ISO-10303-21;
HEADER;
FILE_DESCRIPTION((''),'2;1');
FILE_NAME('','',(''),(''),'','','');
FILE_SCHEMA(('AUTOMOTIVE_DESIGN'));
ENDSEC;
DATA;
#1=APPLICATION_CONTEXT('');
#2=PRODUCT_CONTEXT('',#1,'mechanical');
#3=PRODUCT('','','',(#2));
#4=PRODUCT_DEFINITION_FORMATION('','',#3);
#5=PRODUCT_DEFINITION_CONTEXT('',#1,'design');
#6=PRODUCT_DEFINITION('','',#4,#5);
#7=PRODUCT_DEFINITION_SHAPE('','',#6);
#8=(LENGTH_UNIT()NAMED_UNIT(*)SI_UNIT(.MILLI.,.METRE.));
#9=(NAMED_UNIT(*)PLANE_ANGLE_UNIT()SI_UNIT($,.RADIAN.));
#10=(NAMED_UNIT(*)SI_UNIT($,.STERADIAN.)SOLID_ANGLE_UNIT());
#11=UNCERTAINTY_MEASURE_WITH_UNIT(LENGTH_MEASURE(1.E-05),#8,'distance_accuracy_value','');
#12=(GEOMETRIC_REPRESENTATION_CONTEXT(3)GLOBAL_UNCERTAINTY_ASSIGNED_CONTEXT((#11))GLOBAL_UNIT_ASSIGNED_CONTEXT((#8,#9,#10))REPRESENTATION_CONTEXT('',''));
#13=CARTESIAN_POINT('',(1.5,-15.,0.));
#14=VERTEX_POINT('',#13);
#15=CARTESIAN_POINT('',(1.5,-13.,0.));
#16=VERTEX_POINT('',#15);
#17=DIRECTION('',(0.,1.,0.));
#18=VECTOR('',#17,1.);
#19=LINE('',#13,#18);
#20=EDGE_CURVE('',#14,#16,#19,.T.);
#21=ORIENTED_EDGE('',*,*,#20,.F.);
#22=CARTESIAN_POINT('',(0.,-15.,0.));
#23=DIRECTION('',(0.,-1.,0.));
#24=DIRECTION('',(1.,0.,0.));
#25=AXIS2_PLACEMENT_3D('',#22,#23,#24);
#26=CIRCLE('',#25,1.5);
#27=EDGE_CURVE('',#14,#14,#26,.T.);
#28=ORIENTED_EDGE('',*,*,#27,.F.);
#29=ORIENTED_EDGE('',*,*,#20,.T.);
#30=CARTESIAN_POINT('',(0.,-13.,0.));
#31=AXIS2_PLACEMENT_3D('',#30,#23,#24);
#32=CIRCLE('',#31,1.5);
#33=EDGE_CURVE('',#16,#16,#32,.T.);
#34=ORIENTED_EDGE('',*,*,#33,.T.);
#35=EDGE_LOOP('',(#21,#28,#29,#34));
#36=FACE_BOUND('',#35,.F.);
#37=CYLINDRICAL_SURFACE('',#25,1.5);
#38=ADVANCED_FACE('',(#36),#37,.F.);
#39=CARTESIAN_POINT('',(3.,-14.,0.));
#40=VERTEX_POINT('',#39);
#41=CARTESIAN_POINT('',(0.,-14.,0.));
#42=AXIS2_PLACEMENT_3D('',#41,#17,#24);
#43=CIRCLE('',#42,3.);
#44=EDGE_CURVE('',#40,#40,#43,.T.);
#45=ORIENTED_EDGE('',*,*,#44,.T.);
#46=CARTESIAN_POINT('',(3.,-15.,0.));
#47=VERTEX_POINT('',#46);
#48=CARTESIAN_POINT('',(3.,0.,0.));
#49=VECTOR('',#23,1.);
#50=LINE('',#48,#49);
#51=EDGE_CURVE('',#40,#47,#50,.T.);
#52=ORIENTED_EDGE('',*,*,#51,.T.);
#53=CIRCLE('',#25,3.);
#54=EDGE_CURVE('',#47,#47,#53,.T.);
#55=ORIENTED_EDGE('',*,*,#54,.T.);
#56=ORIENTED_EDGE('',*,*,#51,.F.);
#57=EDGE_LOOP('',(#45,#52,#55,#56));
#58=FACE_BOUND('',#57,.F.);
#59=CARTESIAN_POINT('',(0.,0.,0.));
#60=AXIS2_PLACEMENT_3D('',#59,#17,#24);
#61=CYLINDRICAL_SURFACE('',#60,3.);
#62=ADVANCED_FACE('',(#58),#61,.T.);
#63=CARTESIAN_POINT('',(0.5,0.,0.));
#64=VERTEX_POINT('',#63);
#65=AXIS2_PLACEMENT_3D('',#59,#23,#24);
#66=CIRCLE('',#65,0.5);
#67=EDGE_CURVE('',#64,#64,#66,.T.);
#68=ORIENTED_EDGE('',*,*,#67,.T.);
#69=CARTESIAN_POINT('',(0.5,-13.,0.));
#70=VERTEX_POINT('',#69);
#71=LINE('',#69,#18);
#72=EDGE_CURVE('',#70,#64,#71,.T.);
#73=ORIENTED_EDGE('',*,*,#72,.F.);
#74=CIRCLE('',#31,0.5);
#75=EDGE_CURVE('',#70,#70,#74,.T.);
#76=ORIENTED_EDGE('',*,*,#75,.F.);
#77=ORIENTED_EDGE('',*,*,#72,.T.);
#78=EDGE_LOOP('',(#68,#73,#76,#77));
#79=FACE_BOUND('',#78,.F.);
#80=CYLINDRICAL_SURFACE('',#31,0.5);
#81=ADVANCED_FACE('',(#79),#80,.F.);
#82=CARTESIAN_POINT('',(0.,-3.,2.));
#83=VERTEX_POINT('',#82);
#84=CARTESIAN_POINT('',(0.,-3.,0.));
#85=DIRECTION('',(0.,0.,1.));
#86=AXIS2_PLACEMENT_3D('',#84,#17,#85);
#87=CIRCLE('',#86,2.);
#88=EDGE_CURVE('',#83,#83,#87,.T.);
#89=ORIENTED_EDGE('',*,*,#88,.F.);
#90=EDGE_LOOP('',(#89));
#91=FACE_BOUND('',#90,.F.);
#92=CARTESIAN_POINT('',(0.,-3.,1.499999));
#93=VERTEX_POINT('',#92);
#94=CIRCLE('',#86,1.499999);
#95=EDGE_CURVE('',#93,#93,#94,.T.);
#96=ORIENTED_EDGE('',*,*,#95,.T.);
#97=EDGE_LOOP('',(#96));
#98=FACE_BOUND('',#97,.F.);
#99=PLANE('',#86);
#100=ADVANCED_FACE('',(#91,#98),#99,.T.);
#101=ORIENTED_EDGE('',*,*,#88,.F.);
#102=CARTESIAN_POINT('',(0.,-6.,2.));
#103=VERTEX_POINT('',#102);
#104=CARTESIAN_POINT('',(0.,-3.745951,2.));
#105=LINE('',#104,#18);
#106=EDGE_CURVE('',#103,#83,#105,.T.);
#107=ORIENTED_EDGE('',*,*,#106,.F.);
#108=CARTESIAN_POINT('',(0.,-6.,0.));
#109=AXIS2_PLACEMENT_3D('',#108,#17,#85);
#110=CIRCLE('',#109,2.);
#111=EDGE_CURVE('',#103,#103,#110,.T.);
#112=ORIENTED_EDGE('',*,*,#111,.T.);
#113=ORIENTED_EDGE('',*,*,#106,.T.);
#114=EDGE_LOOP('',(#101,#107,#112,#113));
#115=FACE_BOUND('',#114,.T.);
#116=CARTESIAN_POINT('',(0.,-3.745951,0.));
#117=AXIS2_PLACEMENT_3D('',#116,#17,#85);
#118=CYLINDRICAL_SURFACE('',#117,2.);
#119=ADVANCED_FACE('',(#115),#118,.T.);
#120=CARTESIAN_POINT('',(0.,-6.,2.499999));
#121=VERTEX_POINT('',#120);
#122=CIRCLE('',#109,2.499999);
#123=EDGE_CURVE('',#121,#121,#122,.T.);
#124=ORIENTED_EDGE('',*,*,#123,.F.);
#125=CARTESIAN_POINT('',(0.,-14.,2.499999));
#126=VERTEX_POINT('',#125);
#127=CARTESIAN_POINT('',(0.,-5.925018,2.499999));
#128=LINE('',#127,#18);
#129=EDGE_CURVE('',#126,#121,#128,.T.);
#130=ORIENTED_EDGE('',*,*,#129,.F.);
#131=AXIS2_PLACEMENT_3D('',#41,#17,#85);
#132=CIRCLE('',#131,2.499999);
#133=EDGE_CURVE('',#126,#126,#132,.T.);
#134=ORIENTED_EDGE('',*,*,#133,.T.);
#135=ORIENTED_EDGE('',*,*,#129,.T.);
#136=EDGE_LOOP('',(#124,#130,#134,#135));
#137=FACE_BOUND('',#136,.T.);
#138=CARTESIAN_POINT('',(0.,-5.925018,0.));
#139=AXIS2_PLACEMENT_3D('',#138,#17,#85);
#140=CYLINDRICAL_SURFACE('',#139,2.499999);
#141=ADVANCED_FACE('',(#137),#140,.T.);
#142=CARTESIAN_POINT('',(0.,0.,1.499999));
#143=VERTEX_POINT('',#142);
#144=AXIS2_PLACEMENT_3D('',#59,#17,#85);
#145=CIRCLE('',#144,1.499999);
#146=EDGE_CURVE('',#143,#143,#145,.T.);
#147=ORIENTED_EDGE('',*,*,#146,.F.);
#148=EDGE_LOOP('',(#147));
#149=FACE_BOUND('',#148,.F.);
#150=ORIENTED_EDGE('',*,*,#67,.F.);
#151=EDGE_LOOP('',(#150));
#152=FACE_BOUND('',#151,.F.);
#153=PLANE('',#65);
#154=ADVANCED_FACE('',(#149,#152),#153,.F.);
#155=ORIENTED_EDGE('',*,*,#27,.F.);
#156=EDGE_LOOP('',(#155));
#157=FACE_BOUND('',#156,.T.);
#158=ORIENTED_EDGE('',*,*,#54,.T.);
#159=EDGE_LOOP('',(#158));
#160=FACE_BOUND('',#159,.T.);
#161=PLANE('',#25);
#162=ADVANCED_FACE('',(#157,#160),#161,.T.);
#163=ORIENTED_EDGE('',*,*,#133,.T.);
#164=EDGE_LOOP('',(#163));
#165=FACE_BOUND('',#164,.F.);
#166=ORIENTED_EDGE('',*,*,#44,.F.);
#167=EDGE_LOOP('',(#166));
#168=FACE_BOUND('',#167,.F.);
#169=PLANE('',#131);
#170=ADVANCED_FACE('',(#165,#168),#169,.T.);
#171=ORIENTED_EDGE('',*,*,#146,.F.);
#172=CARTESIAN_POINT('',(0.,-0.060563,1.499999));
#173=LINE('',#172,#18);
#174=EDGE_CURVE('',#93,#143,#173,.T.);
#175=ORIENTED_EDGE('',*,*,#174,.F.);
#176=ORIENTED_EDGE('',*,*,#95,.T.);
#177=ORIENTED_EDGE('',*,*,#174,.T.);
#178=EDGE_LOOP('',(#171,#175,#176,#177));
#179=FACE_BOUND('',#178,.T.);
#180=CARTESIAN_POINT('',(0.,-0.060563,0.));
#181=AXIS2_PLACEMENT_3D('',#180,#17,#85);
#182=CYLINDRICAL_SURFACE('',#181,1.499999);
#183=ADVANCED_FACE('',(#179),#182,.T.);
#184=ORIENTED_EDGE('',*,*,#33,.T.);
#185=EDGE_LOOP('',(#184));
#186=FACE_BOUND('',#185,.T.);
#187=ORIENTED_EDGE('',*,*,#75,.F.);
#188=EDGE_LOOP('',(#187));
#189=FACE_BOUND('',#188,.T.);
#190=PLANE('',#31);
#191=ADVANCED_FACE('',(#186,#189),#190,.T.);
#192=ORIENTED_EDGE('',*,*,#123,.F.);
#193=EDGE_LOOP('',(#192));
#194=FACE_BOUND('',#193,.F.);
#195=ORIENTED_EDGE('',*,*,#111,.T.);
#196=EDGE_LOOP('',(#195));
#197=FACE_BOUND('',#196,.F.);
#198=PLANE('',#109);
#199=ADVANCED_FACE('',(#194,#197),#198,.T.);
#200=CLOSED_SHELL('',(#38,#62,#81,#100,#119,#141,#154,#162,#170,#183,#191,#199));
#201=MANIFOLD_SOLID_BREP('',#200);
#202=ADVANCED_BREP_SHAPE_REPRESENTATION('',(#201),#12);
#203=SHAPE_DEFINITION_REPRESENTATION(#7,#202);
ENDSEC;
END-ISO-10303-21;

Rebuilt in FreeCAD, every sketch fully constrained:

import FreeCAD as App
import Part
import Sketcher

V = App.Vector
Q = App.Units.Quantity

doc = App.newDocument("Part")
body = doc.addObject("PartDesign::Body", "Body")

sketch1 = body.newObject("Sketcher::SketchObject", "Sketch")
sketch1.AttachmentSupport = (doc.getObject("XZ_Plane"), [""])
sketch1.MapMode = "FlatFace"
sketch1.addGeometry(Part.Circle(V(0, 0, 0), V(0, 0, 1), 3), False)
sketch1.addConstraint([
    Sketcher.Constraint("Coincident", 0, 3, -1, 1),
    Sketcher.Constraint("Diameter", 0, Q("6 mm")),
])
pad1 = body.newObject("PartDesign::Pad", "Pad")
pad1.Profile = sketch1
pad1.Length = 15

sketch2 = body.newObject("Sketcher::SketchObject", "Sketch001")
sketch2.AttachmentSupport = (doc.getObject("XZ_Plane"), [""])
sketch2.MapMode = "FlatFace"
sketch2.AttachmentOffset = App.Placement(V(0, 0, 15), App.Rotation())
sketch2.addGeometry(Part.Circle(V(0, 0, 0), V(0, 0, 1), 1.5), False)
sketch2.addConstraint([
    Sketcher.Constraint("Coincident", 0, 3, -1, 1),
    Sketcher.Constraint("Diameter", 0, Q("3 mm")),
])
pocket1 = body.newObject("PartDesign::Pocket", "Pocket")
pocket1.Profile = sketch2
pocket1.Length = 2

sketch3 = body.newObject("Sketcher::SketchObject", "Sketch002")
sketch3.AttachmentSupport = (doc.getObject("YZ_Plane"), [""])
sketch3.MapMode = "FlatFace"
sketch3.addGeometry([
    Part.LineSegment(V(-3, 3.7, 0), V(-3, 1.5, 0)),
    Part.LineSegment(V(-3, 1.5, 0), V(2.9, 1.5, 0)),
    Part.LineSegment(V(2.9, 1.5, 0), V(2.9, 3.7, 0)),
    Part.LineSegment(V(2.9, 3.7, 0), V(-3, 3.7, 0)),
], False)
sketch3.addConstraint([
    Sketcher.Constraint("Coincident", 0, 2, 1, 1),
    Sketcher.Constraint("Coincident", 1, 2, 2, 1),
    Sketcher.Constraint("Coincident", 2, 2, 3, 1),
    Sketcher.Constraint("Coincident", 3, 2, 0, 1),
    Sketcher.Constraint("Vertical", 0),
    Sketcher.Constraint("Horizontal", 1),
    Sketcher.Constraint("Vertical", 2),
    Sketcher.Constraint("Horizontal", 3),
    Sketcher.Constraint("DistanceX", 0, 2, -1, 1, Q("3 mm")),
    Sketcher.Constraint("DistanceY", -1, 1, 0, 2, Q("1.499999 mm")),
    Sketcher.Constraint("DistanceX", 1, 1, 1, 2, Q("5.878874 mm")),
    Sketcher.Constraint("DistanceY", 0, 2, 0, 1, Q("2.213873 mm")),
])
groove = body.newObject("PartDesign::Groove", "Groove")
groove.Profile = sketch3
groove.ReferenceAxis = (sketch3, ["H_Axis"])
groove.Angle = 360

sketch4 = body.newObject("Sketcher::SketchObject", "Sketch003")
sketch4.AttachmentSupport = (doc.getObject("XZ_Plane"), [""])
sketch4.MapMode = "FlatFace"
sketch4.AttachmentOffset = App.Placement(V(0, 0, 13), App.Rotation())
sketch4.addGeometry(Part.Circle(V(0, 0, 0), V(0, 0, 1), 0.5), False)
sketch4.addConstraint([
    Sketcher.Constraint("Coincident", 0, 3, -1, 1),
    Sketcher.Constraint("Diameter", 0, Q("1 mm")),
])
pocket2 = body.newObject("PartDesign::Pocket", "Pocket001")
pocket2.Profile = sketch4
pocket2.Type = "ThroughAll"

sketch5 = body.newObject("Sketcher::SketchObject", "Sketch004")
sketch5.AttachmentSupport = (doc.getObject("YZ_Plane"), [""])
sketch5.MapMode = "FlatFace"
sketch5.addGeometry([
    Part.LineSegment(V(-14, 4.8, 0), V(-14, 2.5, 0)),
    Part.LineSegment(V(-14, 2.5, 0), V(2.1, 2.5, 0)),
    Part.LineSegment(V(2.1, 2.5, 0), V(2.1, 4.8, 0)),
    Part.LineSegment(V(2.1, 4.8, 0), V(-14, 4.8, 0)),
], False)
sketch5.addConstraint([
    Sketcher.Constraint("Coincident", 0, 2, 1, 1),
    Sketcher.Constraint("Coincident", 1, 2, 2, 1),
    Sketcher.Constraint("Coincident", 2, 2, 3, 1),
    Sketcher.Constraint("Coincident", 3, 2, 0, 1),
    Sketcher.Constraint("Vertical", 0),
    Sketcher.Constraint("Horizontal", 1),
    Sketcher.Constraint("Vertical", 2),
    Sketcher.Constraint("Horizontal", 3),
    Sketcher.Constraint("DistanceX", 0, 2, -1, 1, Q("14 mm")),
    Sketcher.Constraint("DistanceY", -1, 1, 0, 2, Q("2.499999 mm")),
    Sketcher.Constraint("DistanceX", 1, 1, 1, 2, Q("16.149964 mm")),
    Sketcher.Constraint("DistanceY", 0, 2, 0, 1, Q("2.257945 mm")),
])
groove2 = body.newObject("PartDesign::Groove", "Groove001")
groove2.Profile = sketch5
groove2.ReferenceAxis = (sketch5, ["H_Axis"])
groove2.Angle = 360

sketch6 = body.newObject("Sketcher::SketchObject", "Sketch005")
sketch6.AttachmentSupport = (doc.getObject("YZ_Plane"), [""])
sketch6.MapMode = "FlatFace"
sketch6.addGeometry([
    Part.LineSegment(V(-6, 3.9, 0), V(-6, 2, 0)),
    Part.LineSegment(V(-6, 2, 0), V(-1.5, 2, 0)),
    Part.LineSegment(V(-1.5, 2, 0), V(-1.5, 3.9, 0)),
    Part.LineSegment(V(-1.5, 3.9, 0), V(-6, 3.9, 0)),
], False)
sketch6.addConstraint([
    Sketcher.Constraint("Coincident", 0, 2, 1, 1),
    Sketcher.Constraint("Coincident", 1, 2, 2, 1),
    Sketcher.Constraint("Coincident", 2, 2, 3, 1),
    Sketcher.Constraint("Coincident", 3, 2, 0, 1),
    Sketcher.Constraint("Vertical", 0),
    Sketcher.Constraint("Horizontal", 1),
    Sketcher.Constraint("Vertical", 2),
    Sketcher.Constraint("Horizontal", 3),
    Sketcher.Constraint("DistanceX", 0, 2, -1, 1, Q("6 mm")),
    Sketcher.Constraint("DistanceY", -1, 1, 0, 2, Q("2 mm")),
    Sketcher.Constraint("DistanceX", 1, 1, 1, 2, Q("4.508098 mm")),
    Sketcher.Constraint("DistanceY", 0, 2, 0, 1, Q("1.941308 mm")),
])
groove3 = body.newObject("PartDesign::Groove", "Groove002")
groove3.Profile = sketch6
groove3.ReferenceAxis = (sketch6, ["H_Axis"])
groove3.Angle = 360

doc.recompute()
